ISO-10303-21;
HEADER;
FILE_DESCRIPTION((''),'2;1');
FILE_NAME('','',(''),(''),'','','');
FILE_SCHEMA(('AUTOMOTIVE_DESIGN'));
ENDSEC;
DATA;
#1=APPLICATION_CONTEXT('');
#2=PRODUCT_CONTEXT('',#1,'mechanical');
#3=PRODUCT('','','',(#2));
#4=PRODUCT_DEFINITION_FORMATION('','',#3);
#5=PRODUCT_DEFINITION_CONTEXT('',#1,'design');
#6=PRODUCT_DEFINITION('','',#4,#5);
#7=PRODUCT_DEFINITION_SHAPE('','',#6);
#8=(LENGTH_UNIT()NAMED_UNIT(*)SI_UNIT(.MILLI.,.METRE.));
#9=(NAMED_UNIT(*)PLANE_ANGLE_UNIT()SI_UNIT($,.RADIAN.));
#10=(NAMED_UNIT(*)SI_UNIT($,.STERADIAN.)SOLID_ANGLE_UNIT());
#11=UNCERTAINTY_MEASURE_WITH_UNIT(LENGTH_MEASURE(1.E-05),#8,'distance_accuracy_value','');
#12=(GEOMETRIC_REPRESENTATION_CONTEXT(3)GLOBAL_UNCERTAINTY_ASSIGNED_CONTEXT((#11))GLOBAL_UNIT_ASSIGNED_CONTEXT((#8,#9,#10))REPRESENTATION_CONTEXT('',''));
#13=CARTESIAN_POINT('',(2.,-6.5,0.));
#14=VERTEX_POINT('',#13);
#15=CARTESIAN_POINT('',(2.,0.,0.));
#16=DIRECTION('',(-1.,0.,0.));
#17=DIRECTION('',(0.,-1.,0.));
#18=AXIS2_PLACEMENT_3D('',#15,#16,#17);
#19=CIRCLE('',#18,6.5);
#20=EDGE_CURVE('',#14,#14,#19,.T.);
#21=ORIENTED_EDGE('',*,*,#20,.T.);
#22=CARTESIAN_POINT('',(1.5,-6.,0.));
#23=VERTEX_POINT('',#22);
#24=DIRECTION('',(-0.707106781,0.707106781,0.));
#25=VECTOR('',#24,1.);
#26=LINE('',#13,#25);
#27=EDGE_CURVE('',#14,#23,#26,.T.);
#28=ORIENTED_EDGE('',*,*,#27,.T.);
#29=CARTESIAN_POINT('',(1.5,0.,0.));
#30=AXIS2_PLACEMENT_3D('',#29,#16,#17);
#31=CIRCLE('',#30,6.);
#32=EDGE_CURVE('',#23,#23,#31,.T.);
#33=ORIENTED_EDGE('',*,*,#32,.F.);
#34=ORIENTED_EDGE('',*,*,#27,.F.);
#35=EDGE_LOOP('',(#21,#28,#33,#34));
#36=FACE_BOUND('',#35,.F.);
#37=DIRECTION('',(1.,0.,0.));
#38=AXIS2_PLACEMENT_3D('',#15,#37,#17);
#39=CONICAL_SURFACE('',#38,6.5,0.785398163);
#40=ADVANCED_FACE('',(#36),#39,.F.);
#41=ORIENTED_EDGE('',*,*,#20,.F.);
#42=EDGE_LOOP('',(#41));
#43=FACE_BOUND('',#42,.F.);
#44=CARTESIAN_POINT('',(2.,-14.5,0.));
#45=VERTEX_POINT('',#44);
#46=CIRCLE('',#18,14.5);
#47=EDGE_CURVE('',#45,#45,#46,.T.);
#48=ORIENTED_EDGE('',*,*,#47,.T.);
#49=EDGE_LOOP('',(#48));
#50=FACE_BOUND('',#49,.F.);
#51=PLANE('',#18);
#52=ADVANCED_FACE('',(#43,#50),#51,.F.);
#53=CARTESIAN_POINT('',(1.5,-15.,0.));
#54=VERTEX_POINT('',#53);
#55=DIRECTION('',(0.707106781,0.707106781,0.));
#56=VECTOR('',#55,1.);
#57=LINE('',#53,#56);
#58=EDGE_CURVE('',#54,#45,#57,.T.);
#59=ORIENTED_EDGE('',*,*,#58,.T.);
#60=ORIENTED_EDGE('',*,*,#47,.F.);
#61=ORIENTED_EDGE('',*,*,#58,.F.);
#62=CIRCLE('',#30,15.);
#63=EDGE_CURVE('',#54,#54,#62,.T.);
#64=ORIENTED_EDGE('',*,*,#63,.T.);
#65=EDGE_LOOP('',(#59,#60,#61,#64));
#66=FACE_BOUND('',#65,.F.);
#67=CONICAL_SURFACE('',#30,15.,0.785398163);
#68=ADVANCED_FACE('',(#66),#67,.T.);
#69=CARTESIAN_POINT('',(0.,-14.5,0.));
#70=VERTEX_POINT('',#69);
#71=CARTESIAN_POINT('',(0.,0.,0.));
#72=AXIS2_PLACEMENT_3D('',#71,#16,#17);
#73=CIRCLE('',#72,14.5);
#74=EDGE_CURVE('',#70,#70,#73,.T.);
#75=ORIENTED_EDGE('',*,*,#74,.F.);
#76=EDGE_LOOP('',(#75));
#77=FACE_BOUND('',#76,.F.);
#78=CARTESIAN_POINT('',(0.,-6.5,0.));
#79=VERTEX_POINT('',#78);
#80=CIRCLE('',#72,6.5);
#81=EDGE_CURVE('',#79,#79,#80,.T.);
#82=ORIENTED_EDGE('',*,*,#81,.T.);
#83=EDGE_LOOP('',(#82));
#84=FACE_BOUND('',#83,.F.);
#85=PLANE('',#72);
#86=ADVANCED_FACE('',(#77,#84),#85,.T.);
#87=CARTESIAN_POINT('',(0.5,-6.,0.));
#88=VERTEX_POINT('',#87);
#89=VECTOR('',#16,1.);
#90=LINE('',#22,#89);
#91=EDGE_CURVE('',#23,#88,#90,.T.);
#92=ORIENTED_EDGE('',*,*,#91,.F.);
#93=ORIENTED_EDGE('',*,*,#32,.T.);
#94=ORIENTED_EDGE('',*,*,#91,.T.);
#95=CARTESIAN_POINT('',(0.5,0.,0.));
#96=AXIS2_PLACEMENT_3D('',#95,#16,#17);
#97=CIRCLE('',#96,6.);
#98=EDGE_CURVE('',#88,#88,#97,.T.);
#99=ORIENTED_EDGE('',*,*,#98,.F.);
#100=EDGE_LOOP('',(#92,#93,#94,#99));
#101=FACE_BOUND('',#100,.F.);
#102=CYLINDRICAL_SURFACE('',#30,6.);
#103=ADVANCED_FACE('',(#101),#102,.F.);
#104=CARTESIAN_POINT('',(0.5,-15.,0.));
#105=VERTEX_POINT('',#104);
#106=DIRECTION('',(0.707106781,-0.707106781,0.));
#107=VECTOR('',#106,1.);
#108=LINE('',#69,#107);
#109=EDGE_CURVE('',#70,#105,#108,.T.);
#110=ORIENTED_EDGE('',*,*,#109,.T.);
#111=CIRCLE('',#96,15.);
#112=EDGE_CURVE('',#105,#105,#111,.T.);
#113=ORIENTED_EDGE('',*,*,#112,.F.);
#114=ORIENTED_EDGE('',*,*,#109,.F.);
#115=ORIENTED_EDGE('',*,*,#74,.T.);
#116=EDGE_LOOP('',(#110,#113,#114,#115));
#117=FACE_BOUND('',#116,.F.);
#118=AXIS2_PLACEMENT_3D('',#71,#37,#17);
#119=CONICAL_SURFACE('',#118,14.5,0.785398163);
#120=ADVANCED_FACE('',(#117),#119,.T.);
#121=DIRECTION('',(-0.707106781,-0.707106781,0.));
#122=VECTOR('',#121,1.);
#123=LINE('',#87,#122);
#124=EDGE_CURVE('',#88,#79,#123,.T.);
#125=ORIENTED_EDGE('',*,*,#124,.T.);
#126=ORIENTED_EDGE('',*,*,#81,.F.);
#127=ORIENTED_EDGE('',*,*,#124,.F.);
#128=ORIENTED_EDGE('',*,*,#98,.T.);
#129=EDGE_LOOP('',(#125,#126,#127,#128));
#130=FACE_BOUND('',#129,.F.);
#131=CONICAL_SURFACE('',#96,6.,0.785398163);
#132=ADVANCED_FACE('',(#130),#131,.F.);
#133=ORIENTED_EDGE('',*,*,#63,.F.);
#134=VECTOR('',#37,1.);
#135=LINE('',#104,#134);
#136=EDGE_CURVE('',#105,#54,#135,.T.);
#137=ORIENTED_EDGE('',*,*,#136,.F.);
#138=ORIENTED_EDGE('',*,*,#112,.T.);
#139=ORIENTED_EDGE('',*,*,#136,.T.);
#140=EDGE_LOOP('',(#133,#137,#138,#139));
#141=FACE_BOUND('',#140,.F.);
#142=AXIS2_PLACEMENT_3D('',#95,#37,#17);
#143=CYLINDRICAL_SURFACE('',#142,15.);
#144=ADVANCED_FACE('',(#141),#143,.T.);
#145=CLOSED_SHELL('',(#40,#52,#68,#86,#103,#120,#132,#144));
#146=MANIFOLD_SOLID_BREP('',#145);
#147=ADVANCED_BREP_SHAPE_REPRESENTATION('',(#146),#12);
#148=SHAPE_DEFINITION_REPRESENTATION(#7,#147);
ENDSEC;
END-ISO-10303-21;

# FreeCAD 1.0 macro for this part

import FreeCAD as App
import Part
import Sketcher
from FreeCAD import Vector


def add_polygon(sketch, points):
    """Adds a closed chain of lines whose ends are joined by coincident constraints."""
    first, n = sketch.GeometryCount, len(points)
    for a, b in zip(points, points[1:] + points[:1]):
        sketch.addGeometry(Part.LineSegment(App.Vector(*a, 0), App.Vector(*b, 0)), False)
    for i in range(n):
        sketch.addConstraint(Sketcher.Constraint("Coincident", first + i, 2, first + (i + 1) % n, 1))

doc = App.newDocument("Part")
body = doc.addObject("PartDesign::Body", "Body")

# Sketch on XY plane
sketch1 = body.newObject("Sketcher::SketchObject", "Sketch")
sketch1.AttachmentSupport = (doc.getObject("XY_Plane"), [""])
sketch1.MapMode = "FlatFace"
add_polygon(sketch1, [(0.5, -6), (0, -6.5), (0, -14.5), (0.5, -15), (1.5, -15), (2, -14.5), (2, -6.5), (1.5, -6)])  # lines 0-7
sketch1.addConstraint([
    Sketcher.Constraint("Vertical", 1),
    Sketcher.Constraint("Horizontal", 3),
    Sketcher.Constraint("Vertical", 5),
    Sketcher.Constraint("Horizontal", 7),
    Sketcher.Constraint("PointOnObject", 0, 2, -2),
    Sketcher.Constraint("Perpendicular", 0, 2),
    Sketcher.Constraint("Perpendicular", 2, 4),
    Sketcher.Constraint("Perpendicular", 4, 6),
    Sketcher.Constraint("Horizontal", 1, 2, 4, 2),
    Sketcher.Constraint("Horizontal", 0, 2, 5, 2),
    Sketcher.Constraint("Vertical", 3, 2, 6, 2),
    Sketcher.Constraint("Vertical", 2, 2, 7, 2),
    Sketcher.Constraint("DistanceX", 3, 1, 3, 2, 1.0),
    Sketcher.Constraint("DistanceY", 1, 2, 1, 1, 8.0),
    Sketcher.Constraint("DistanceY", 2, 2, -1, 1, 15.0),
    Sketcher.Constraint("DistanceX", -1, 1, 4, 2, 2.0),
])
revolution = body.newObject("PartDesign::Revolution", "Revolution")
revolution.Profile = sketch1
revolution.ReferenceAxis = (sketch1, ["H_Axis"])
revolution.Angle = 360

doc.recompute()
